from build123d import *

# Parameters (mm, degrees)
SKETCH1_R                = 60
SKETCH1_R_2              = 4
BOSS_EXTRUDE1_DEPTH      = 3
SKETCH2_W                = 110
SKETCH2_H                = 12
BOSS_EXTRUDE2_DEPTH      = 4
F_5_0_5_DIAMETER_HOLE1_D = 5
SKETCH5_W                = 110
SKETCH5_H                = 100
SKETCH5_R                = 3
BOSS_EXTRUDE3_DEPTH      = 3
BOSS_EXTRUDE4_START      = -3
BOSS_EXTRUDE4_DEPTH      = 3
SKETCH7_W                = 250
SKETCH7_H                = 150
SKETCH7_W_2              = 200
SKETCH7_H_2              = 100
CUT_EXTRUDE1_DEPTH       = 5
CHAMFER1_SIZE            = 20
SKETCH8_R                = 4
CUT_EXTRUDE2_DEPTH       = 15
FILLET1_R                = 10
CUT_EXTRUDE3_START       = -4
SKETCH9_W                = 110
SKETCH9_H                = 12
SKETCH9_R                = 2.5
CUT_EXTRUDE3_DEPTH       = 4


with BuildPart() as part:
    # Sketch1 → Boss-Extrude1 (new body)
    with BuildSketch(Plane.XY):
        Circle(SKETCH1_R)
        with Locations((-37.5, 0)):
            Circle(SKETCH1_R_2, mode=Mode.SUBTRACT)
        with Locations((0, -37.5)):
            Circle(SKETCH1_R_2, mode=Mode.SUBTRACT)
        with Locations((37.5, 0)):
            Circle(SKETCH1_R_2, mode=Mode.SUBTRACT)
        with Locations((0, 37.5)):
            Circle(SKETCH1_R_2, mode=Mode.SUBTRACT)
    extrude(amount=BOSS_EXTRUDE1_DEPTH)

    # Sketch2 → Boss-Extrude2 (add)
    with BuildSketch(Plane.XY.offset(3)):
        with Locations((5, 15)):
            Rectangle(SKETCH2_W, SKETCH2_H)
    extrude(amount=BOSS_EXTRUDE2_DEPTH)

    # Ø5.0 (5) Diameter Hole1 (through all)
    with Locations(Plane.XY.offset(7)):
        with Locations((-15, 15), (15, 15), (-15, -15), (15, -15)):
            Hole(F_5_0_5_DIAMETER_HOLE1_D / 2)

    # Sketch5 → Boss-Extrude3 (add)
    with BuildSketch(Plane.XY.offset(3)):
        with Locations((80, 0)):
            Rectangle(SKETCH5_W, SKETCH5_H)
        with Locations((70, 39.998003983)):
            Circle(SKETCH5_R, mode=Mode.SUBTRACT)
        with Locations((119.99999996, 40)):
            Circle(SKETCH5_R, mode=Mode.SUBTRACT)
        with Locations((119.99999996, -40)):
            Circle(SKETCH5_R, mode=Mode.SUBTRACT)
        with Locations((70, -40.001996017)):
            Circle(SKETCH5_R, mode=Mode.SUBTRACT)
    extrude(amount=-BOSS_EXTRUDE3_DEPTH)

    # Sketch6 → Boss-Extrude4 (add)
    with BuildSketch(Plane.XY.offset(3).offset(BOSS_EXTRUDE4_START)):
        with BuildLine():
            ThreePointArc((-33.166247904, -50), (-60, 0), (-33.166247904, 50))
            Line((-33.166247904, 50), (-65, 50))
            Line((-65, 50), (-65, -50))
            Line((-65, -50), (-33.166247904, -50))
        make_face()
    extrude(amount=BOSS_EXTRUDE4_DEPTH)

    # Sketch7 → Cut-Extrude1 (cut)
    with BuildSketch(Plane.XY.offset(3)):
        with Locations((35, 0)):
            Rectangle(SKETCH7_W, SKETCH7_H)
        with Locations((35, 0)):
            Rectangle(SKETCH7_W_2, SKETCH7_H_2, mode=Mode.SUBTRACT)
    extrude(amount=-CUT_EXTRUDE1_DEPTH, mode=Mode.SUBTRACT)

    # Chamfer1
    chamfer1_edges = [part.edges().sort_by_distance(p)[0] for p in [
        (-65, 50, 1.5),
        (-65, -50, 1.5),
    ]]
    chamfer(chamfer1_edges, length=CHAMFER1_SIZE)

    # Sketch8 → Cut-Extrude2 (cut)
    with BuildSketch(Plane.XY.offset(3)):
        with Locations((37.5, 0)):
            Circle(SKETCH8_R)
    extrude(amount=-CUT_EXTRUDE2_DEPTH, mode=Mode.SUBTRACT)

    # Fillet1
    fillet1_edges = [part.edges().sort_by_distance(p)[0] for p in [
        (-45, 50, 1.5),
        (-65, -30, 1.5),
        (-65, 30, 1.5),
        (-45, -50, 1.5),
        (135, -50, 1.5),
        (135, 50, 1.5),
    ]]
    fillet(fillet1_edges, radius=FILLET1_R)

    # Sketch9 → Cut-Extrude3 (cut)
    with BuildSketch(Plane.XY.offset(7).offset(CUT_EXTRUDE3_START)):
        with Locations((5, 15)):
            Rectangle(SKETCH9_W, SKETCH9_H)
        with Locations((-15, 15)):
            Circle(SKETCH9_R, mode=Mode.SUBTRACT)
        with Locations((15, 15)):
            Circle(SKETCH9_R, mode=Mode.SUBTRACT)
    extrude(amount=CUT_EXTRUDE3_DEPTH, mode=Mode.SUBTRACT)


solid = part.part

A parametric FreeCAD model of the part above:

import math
import FreeCAD as App
import Part
import Sketcher
Q = App.Units.Quantity


def edges_at(feature, points):
    """Names of the edges that pass closest to the given points."""
    edges = feature.Shape.Edges
    near = lambda p: min(range(len(edges)), key=lambda i: edges[i].distToShape(Part.Vertex(*p))[0])
    return sorted({f"Edge{near(p) + 1}" for p in points})

doc = App.newDocument("Part")
body = doc.addObject("PartDesign::Body", "Body")

# Sketch on XY plane
sketch1 = body.newObject("Sketcher::SketchObject", "Sketch")
sketch1.AttachmentSupport = (doc.getObject("XY_Plane"), [""])
sketch1.MapMode = "FlatFace"
sketch1.addGeometry([
    Part.Circle(App.Vector(0, 0, 0), App.Vector(0, 0, 1), 60),  # 0
    Part.Circle(App.Vector(0, -37.5, 0), App.Vector(0, 0, 1), 4),  # 1
    Part.Circle(App.Vector(-37.5, 0, 0), App.Vector(0, 0, 1), 4),  # 2
    Part.Circle(App.Vector(37.5, 0, 0), App.Vector(0, 0, 1), 4),  # 3
    Part.Circle(App.Vector(0, 37.5, 0), App.Vector(0, 0, 1), 4),  # 4
], False)
sketch1.addConstraint([
    Sketcher.Constraint("Coincident", 0, 3, -1, 1),
    Sketcher.Constraint("Equal", 1, 2),
    Sketcher.Constraint("Equal", 2, 3),
    Sketcher.Constraint("Equal", 3, 4),
    Sketcher.Constraint("Symmetric", 2, 3, 3, 3, -1, 1),
    Sketcher.Constraint("Symmetric", 1, 3, 4, 3, -1, 1),
    Sketcher.Constraint("PointOnObject", 1, 3, -2),
    Sketcher.Constraint("PointOnObject", 2, 3, -1),
    Sketcher.Constraint("Diameter", 0, Q("120 mm")),
    Sketcher.Constraint("Diameter", 1, Q("8 mm")),
    Sketcher.Constraint("DistanceX", 2, 3, 3, 3, Q("75 mm")),
    Sketcher.Constraint("DistanceY", 1, 3, 4, 3, Q("75 mm")),
])
pad1 = body.newObject("PartDesign::Pad", "Pad")
pad1.Profile = sketch1
pad1.Length = 3

# Sketch on XY plane
sketch2 = body.newObject("Sketcher::SketchObject", "Sketch001")
sketch2.AttachmentSupport = (doc.getObject("XY_Plane"), [""])
sketch2.MapMode = "FlatFace"
sketch2.AttachmentOffset = App.Placement(App.Vector(0, 0, 3), App.Rotation())
sketch2.addGeometry([
    Part.LineSegment(App.Vector(-50, 21, 0), App.Vector(-50, 9, 0)),
    Part.LineSegment(App.Vector(-50, 9, 0), App.Vector(60, 9, 0)),
    Part.LineSegment(App.Vector(60, 9, 0), App.Vector(60, 21, 0)),
    Part.LineSegment(App.Vector(60, 21, 0), App.Vector(-50, 21, 0)),
], False)
sketch2.addConstraint([
    Sketcher.Constraint("Coincident", 0, 2, 1, 1),
    Sketcher.Constraint("Coincident", 1, 2, 2, 1),
    Sketcher.Constraint("Coincident", 2, 2, 3, 1),
    Sketcher.Constraint("Coincident", 3, 2, 0, 1),
    Sketcher.Constraint("Vertical", 0),
    Sketcher.Constraint("Horizontal", 1),
    Sketcher.Constraint("Vertical", 2),
    Sketcher.Constraint("Horizontal", 3),
    Sketcher.Constraint("DistanceX", 1, 1, 1, 2, Q("110 mm")),
    Sketcher.Constraint("DistanceY", 0, 2, 0, 1, Q("12 mm")),
    Sketcher.Constraint("DistanceX", 0, 2, -1, 1, Q("50 mm")),
    Sketcher.Constraint("DistanceY", -1, 1, 0, 2, Q("9 mm")),
])
pad2 = body.newObject("PartDesign::Pad", "Pad001")
pad2.Profile = sketch2
pad2.Length = 4

# Sketch on XY plane
sketch3 = body.newObject("Sketcher::SketchObject", "Sketch002")
sketch3.AttachmentSupport = (doc.getObject("XY_Plane"), [""])
sketch3.MapMode = "FlatFace"
sketch3.AttachmentOffset = App.Placement(App.Vector(0, 0, 7), App.Rotation())
sketch3.addGeometry([
    Part.Circle(App.Vector(-15, 15, 0), App.Vector(0, 0, 1), 2.5),
    Part.Circle(App.Vector(15, 15, 0), App.Vector(0, 0, 1), 2.5),
    Part.Circle(App.Vector(-15, -15, 0), App.Vector(0, 0, 1), 2.5),
    Part.Circle(App.Vector(15, -15, 0), App.Vector(0, 0, 1), 2.5),
], False)
sketch3.addConstraint([
    Sketcher.Constraint("Equal", 0, 1),
    Sketcher.Constraint("Equal", 1, 2),
    Sketcher.Constraint("Equal", 2, 3),
    Sketcher.Constraint("Symmetric", 1, 3, 2, 3, -1, 1),
    Sketcher.Constraint("Symmetric", 0, 3, 3, 3, -1, 1),
    Sketcher.Constraint("Symmetric", 0, 3, 1, 3, -2),
    Sketcher.Constraint("Diameter", 0, Q("5 mm")),
    Sketcher.Constraint("DistanceX", 0, 3, -1, 1, Q("15 mm")),
    Sketcher.Constraint("DistanceY", -1, 1, 0, 3, Q("15 mm")),
])
doc.recompute()
hole = body.newObject("PartDesign::Hole", "Hole")
hole.Profile = sketch3
hole.ThreadType = "None"
hole.Diameter = 5
hole.DepthType = "ThroughAll"

# Sketch on XY plane
sketch4 = body.newObject("Sketcher::SketchObject", "Sketch003")
sketch4.AttachmentSupport = (doc.getObject("XY_Plane"), [""])
sketch4.MapMode = "FlatFace"
sketch4.AttachmentOffset = App.Placement(App.Vector(0, 0, 3), App.Rotation())
sketch4.addGeometry([
    Part.LineSegment(App.Vector(25, 50, 0), App.Vector(25, -50, 0)),  # 0
    Part.LineSegment(App.Vector(25, -50, 0), App.Vector(135, -50, 0)),  # 1
    Part.LineSegment(App.Vector(135, -50, 0), App.Vector(135, 50, 0)),  # 2
    Part.LineSegment(App.Vector(135, 50, 0), App.Vector(25, 50, 0)),  # 3
    Part.Circle(App.Vector(70, -40, 0), App.Vector(0, 0, 1), 3),  # 4
    Part.Circle(App.Vector(120, -40, 0), App.Vector(0, 0, 1), 3),  # 5
    Part.Circle(App.Vector(70, 40, 0), App.Vector(0, 0, 1), 3),  # 6
    Part.Circle(App.Vector(120, 40, 0), App.Vector(0, 0, 1), 3),  # 7
], False)
sketch4.addConstraint([
    Sketcher.Constraint("Coincident", 0, 2, 1, 1),
    Sketcher.Constraint("Coincident", 1, 2, 2, 1),
    Sketcher.Constraint("Coincident", 2, 2, 3, 1),
    Sketcher.Constraint("Coincident", 3, 2, 0, 1),
    Sketcher.Constraint("Vertical", 0),
    Sketcher.Constraint("Horizontal", 1),
    Sketcher.Constraint("Vertical", 2),
    Sketcher.Constraint("Horizontal", 3),
    Sketcher.Constraint("Equal", 4, 5),
    Sketcher.Constraint("Equal", 5, 6),
    Sketcher.Constraint("Equal", 6, 7),
    Sketcher.Constraint("Symmetric", 5, 3, 7, 3, -1),
    Sketcher.Constraint("Vertical", 4, 3, 6, 3),
    Sketcher.Constraint("Diameter", 4, Q("6 mm")),
    Sketcher.Constraint("DistanceX", 1, 1, 1, 2, Q("110 mm")),
    Sketcher.Constraint("DistanceY", 0, 2, 0, 1, Q("100 mm")),
    Sketcher.Constraint("DistanceX", -1, 1, 4, 3, Q("70 mm")),
    Sketcher.Constraint("DistanceX", -1, 1, 5, 3, Q("120 mm")),
    Sketcher.Constraint("DistanceY", 5, 3, -1, 1, Q("40 mm")),
    Sketcher.Constraint("DistanceX", -1, 1, 0, 2, Q("25 mm")),
    Sketcher.Constraint("DistanceY", 0, 2, -1, 1, Q("50 mm")),
    Sketcher.Constraint("DistanceY", 4, 3, 6, 3, Q("80 mm")),
    Sketcher.Constraint("DistanceY", 4, 3, -1, 1, Q("40.001996 mm")),
])
pad3 = body.newObject("PartDesign::Pad", "Pad002")
pad3.Profile = sketch4
pad3.Length = 3
pad3.Reversed = True

# Sketch on XY plane
sketch5 = body.newObject("Sketcher::SketchObject", "Sketch004")
sketch5.AttachmentSupport = (doc.getObject("XY_Plane"), [""])
sketch5.MapMode = "FlatFace"
sketch5.addGeometry([
    Part.ArcOfCircle(Part.Circle(App.Vector(0, 0, 0), App.Vector(0, 0, 1), 60), math.radians(124), math.radians(236)),
    Part.LineSegment(App.Vector(-33, 50, 0), App.Vector(-65, 50, 0)),
    Part.LineSegment(App.Vector(-65, 50, 0), App.Vector(-65, -50, 0)),
    Part.LineSegment(App.Vector(-65, -50, 0), App.Vector(-33, -50, 0)),
], False)
sketch5.addConstraint([
    Sketcher.Constraint("Coincident", 0, 1, 1, 1),
    Sketcher.Constraint("Coincident", 1, 2, 2, 1),
    Sketcher.Constraint("Coincident", 2, 2, 3, 1),
    Sketcher.Constraint("Coincident", 3, 2, 0, 2),
    Sketcher.Constraint("Horizontal", 1),
    Sketcher.Constraint("Vertical", 2),
    Sketcher.Constraint("Horizontal", 3),
    Sketcher.Constraint("Coincident", 0, 3, -1, 1),
    Sketcher.Constraint("Vertical", 0, 1, 3, 2),
    Sketcher.Constraint("Radius", 0, Q("60 mm")),
    Sketcher.Constraint("DistanceY", 2, 2, 2, 1, Q("100 mm")),
    Sketcher.Constraint("DistanceX", 1, 2, -1, 1, Q("65 mm")),
])
pad4 = body.newObject("PartDesign::Pad", "Pad003")
pad4.Profile = sketch5
pad4.Length = 3

# Sketch on XY plane
sketch6 = body.newObject("Sketcher::SketchObject", "Sketch005")
sketch6.AttachmentSupport = (doc.getObject("XY_Plane"), [""])
sketch6.MapMode = "FlatFace"
sketch6.AttachmentOffset = App.Placement(App.Vector(0, 0, 3), App.Rotation())
sketch6.addGeometry([
    Part.LineSegment(App.Vector(-90, 75, 0), App.Vector(-90, -75, 0)),  # 0
    Part.LineSegment(App.Vector(-90, -75, 0), App.Vector(160, -75, 0)),  # 1
    Part.LineSegment(App.Vector(160, -75, 0), App.Vector(160, 75, 0)),  # 2
    Part.LineSegment(App.Vector(160, 75, 0), App.Vector(-90, 75, 0)),  # 3
    Part.LineSegment(App.Vector(135, -50, 0), App.Vector(-65, -50, 0)),  # 4
    Part.LineSegment(App.Vector(-65, -50, 0), App.Vector(-65, 50, 0)),  # 5
    Part.LineSegment(App.Vector(-65, 50, 0), App.Vector(135, 50, 0)),  # 6
    Part.LineSegment(App.Vector(135, 50, 0), App.Vector(135, -50, 0)),  # 7
], False)
sketch6.addConstraint([
    Sketcher.Constraint("Coincident", 0, 2, 1, 1),
    Sketcher.Constraint("Coincident", 1, 2, 2, 1),
    Sketcher.Constraint("Coincident", 2, 2, 3, 1),
    Sketcher.Constraint("Coincident", 3, 2, 0, 1),
    Sketcher.Constraint("Coincident", 4, 2, 5, 1),
    Sketcher.Constraint("Coincident", 5, 2, 6, 1),
    Sketcher.Constraint("Coincident", 6, 2, 7, 1),
    Sketcher.Constraint("Coincident", 7, 2, 4, 1),
    Sketcher.Constraint("Vertical", 0),
    Sketcher.Constraint("Horizontal", 1),
    Sketcher.Constraint("Vertical", 2),
    Sketcher.Constraint("Horizontal", 3),
    Sketcher.Constraint("Horizontal", 4),
    Sketcher.Constraint("Vertical", 5),
    Sketcher.Constraint("Horizontal", 6),
    Sketcher.Constraint("Vertical", 7),
    Sketcher.Constraint("DistanceX", 1, 1, 1, 2, Q("250 mm")),
    Sketcher.Constraint("DistanceX", 4, 2, 4, 1, Q("200 mm")),
    Sketcher.Constraint("DistanceY", 0, 2, 0, 1, Q("150 mm")),
    Sketcher.Constraint("DistanceY", 5, 1, 5, 2, Q("100 mm")),
    Sketcher.Constraint("DistanceX", 0, 2, -1, 1, Q("90 mm")),
    Sketcher.Constraint("DistanceY", 0, 2, -1, 1, Q("75 mm")),
    Sketcher.Constraint("DistanceX", 4, 2, -1, 1, Q("65 mm")),
    Sketcher.Constraint("DistanceY", 4, 2, -1, 1, Q("50 mm")),
])
pocket1 = body.newObject("PartDesign::Pocket", "Pocket")
pocket1.Profile = sketch6
pocket1.Length = 5
doc.recompute()

chamfer = body.newObject("PartDesign::Chamfer", "Chamfer")
chamfer.Base = (pocket1, edges_at(pocket1, [(-65, 50, 1.5), (-65, -50, 1.5)]))
chamfer.Size = 20

# Sketch on XY plane
sketch7 = body.newObject("Sketcher::SketchObject", "Sketch006")
sketch7.AttachmentSupport = (doc.getObject("XY_Plane"), [""])
sketch7.MapMode = "FlatFace"
sketch7.AttachmentOffset = App.Placement(App.Vector(0, 0, 3), App.Rotation())
sketch7.addGeometry(Part.Circle(App.Vector(37.5, 0, 0), App.Vector(0, 0, 1), 4), False)
sketch7.addConstraint([
    Sketcher.Constraint("PointOnObject", 0, 3, -1),
    Sketcher.Constraint("Diameter", 0, Q("8 mm")),
    Sketcher.Constraint("DistanceX", -1, 1, 0, 3, Q("37.5 mm")),
])
pocket2 = body.newObject("PartDesign::Pocket", "Pocket001")
pocket2.Profile = sketch7
pocket2.Length = 15
doc.recompute()

fillet = body.newObject("PartDesign::Fillet", "Fillet")
fillet.Base = (pocket2, edges_at(pocket2, [
    (-45, 50, 1.5),
    (-65, -30, 1.5),
    (-65, 30, 1.5),
    (-45, -50, 1.5),
    (135, -50, 1.5),
    (135, 50, 1.5),
]))
fillet.Radius = 10

# Sketch on XY plane
sketch8 = body.newObject("Sketcher::SketchObject", "Sketch007")
sketch8.AttachmentSupport = (doc.getObject("XY_Plane"), [""])
sketch8.MapMode = "FlatFace"
sketch8.AttachmentOffset = App.Placement(App.Vector(0, 0, 3), App.Rotation())
sketch8.addGeometry([
    Part.LineSegment(App.Vector(-50, 21, 0), App.Vector(-50, 9, 0)),  # 0
    Part.LineSegment(App.Vector(-50, 9, 0), App.Vector(60, 9, 0)),  # 1
    Part.LineSegment(App.Vector(60, 9, 0), App.Vector(60, 21, 0)),  # 2
    Part.LineSegment(App.Vector(60, 21, 0), App.Vector(-50, 21, 0)),  # 3
    Part.Circle(App.Vector(-15, 15, 0), App.Vector(0, 0, 1), 2.5),  # 4
    Part.Circle(App.Vector(15, 15, 0), App.Vector(0, 0, 1), 2.5),  # 5
], False)
sketch8.addConstraint([
    Sketcher.Constraint("Coincident", 0, 2, 1, 1),
    Sketcher.Constraint("Coincident", 1, 2, 2, 1),
    Sketcher.Constraint("Coincident", 2, 2, 3, 1),
    Sketcher.Constraint("Coincident", 3, 2, 0, 1),
    Sketcher.Constraint("Vertical", 0),
    Sketcher.Constraint("Horizontal", 1),
    Sketcher.Constraint("Vertical", 2),
    Sketcher.Constraint("Horizontal", 3),
    Sketcher.Constraint("Equal", 4, 5),
    Sketcher.Constraint("Symmetric", 4, 3, 5, 3, -2),
    Sketcher.Constraint("Diameter", 4, Q("5 mm")),
    Sketcher.Constraint("DistanceX", 1, 1, 1, 2, Q("110 mm")),
    Sketcher.Constraint("DistanceY", 0, 2, 0, 1, Q("12 mm")),
    Sketcher.Constraint("DistanceX", 4, 3, -1, 1, Q("15 mm")),
    Sketcher.Constraint("DistanceY", -1, 1, 4, 3, Q("15 mm")),
    Sketcher.Constraint("DistanceX", 0, 2, -1, 1, Q("50 mm")),
    Sketcher.Constraint("DistanceY", -1, 1, 0, 2, Q("9 mm")),
])
pocket3 = body.newObject("PartDesign::Pocket", "Pocket002")
pocket3.Profile = sketch8
pocket3.Length = 4
pocket3.Reversed = True

doc.recompute()
